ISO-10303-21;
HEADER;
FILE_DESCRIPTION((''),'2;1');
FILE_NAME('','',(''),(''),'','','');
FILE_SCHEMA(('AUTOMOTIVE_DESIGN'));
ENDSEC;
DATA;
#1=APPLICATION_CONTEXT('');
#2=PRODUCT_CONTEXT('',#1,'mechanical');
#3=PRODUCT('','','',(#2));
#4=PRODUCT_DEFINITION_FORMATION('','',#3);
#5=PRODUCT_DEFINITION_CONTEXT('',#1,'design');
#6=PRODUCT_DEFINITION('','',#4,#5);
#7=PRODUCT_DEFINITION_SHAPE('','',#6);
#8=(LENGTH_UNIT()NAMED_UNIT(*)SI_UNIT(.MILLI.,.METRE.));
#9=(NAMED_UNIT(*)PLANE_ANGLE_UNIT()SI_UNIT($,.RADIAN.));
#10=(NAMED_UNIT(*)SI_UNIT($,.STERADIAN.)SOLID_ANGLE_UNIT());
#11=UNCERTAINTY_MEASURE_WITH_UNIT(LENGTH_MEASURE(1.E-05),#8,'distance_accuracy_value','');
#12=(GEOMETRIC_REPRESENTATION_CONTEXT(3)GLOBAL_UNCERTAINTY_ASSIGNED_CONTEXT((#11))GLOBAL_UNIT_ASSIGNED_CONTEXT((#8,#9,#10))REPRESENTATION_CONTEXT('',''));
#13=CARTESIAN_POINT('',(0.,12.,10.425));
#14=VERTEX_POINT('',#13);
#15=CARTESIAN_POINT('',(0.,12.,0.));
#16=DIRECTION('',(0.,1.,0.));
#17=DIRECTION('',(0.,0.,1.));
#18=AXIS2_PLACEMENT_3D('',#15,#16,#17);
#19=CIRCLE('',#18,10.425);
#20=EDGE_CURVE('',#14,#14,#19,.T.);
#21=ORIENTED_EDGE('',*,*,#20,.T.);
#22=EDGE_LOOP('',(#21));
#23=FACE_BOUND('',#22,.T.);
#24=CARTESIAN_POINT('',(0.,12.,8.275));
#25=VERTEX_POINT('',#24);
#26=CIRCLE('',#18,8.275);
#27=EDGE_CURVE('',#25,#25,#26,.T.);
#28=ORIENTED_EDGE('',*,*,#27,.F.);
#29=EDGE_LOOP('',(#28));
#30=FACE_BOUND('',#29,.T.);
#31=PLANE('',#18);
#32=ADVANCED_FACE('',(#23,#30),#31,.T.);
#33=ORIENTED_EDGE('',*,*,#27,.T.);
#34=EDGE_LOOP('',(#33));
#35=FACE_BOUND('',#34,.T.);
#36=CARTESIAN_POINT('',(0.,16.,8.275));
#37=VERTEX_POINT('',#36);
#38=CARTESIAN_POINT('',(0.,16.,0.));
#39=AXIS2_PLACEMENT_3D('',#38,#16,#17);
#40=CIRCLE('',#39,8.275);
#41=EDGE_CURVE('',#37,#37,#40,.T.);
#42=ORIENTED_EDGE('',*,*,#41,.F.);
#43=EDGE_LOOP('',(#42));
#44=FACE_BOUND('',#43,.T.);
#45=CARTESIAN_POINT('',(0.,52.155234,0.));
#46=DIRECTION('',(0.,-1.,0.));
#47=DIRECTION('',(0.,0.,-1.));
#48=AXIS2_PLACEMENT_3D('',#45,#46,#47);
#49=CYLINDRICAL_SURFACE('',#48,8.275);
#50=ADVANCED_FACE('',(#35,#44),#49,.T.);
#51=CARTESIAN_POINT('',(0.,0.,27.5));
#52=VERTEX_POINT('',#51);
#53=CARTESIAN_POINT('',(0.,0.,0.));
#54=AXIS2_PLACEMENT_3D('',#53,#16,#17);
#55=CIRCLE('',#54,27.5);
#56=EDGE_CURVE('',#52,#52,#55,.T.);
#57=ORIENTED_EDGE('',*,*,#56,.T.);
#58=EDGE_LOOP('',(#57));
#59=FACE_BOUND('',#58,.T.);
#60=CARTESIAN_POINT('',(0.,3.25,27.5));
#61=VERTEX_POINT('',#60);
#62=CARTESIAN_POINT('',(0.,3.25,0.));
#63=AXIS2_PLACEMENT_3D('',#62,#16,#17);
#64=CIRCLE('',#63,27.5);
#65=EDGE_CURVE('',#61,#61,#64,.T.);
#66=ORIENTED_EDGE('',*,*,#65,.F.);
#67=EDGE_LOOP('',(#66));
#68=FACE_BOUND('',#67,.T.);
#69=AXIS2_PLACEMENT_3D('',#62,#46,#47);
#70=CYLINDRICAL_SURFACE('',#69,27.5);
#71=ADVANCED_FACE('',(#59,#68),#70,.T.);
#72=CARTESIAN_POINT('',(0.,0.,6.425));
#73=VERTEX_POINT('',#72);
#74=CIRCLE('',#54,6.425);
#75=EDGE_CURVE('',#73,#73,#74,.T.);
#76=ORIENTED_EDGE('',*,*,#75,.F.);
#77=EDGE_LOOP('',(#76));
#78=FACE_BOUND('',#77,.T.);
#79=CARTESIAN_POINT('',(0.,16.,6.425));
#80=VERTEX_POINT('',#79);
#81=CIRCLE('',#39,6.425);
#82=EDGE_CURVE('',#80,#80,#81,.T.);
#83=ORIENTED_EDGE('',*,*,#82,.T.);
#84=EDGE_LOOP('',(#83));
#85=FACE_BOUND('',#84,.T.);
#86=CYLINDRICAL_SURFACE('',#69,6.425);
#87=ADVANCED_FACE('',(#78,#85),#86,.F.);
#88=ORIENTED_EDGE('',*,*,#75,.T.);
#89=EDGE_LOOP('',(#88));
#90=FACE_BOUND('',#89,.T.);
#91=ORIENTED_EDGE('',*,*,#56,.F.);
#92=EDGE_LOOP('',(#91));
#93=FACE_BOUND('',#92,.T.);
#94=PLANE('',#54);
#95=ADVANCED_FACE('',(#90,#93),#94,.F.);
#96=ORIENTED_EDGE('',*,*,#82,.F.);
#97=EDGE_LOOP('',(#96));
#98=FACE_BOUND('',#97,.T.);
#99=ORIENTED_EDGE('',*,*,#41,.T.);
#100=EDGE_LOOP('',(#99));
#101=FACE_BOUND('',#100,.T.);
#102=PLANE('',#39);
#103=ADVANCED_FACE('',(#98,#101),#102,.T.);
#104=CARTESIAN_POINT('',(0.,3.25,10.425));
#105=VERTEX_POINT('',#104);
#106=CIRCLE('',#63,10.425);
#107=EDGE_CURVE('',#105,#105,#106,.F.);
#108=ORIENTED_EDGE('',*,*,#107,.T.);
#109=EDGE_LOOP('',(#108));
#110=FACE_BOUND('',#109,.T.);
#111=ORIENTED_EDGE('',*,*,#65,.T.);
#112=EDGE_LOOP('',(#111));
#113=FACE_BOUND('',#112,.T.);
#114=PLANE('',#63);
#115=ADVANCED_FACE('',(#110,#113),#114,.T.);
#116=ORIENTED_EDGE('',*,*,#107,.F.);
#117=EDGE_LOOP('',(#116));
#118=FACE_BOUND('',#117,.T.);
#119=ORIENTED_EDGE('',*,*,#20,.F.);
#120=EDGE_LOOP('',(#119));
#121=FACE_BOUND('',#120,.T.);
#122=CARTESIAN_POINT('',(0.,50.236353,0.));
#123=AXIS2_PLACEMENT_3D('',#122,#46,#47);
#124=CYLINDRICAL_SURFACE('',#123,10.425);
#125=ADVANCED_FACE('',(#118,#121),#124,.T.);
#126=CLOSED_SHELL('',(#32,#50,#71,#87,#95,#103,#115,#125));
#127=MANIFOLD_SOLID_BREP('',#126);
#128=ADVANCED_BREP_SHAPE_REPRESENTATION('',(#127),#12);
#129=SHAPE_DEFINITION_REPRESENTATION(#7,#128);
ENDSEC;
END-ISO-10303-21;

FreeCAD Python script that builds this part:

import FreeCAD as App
import Part
import Sketcher

V = App.Vector

doc = App.newDocument("Part")
body = doc.addObject("PartDesign::Body", "Body")

sketch1 = body.newObject("Sketcher::SketchObject", "Sketch")
sketch1.AttachmentSupport = (doc.getObject("XZ_Plane"), [""])
sketch1.MapMode = "FlatFace"
sketch1.addGeometry([
    Part.Circle(V(0, 0, 0), V(0, 0, 1), 28),
    Part.Circle(V(0, 0, 0), V(0, 0, 1), 6),
], False)
sketch1.addConstraint([
    Sketcher.Constraint("Coincident", 0, 3, -1, 1),
    Sketcher.Constraint("Coincident", 1, 3, -1, 1),
    Sketcher.Constraint("Diameter", 0, 55.0),
    Sketcher.Constraint("Diameter", 1, 12.85),
])
pad1 = body.newObject("PartDesign::Pad", "Pad")
pad1.Profile = sketch1
pad1.Length = 3.25
pad1.Reversed = True

sketch2 = body.newObject("Sketcher::SketchObject", "Sketch001")
sketch2.AttachmentSupport = (doc.getObject("XZ_Plane"), [""])
sketch2.MapMode = "FlatFace"
sketch2.addGeometry([
    Part.Circle(V(0, 0, 0), V(0, 0, 1), 8),
    Part.Circle(V(0, 0, 0), V(0, 0, 1), 6),
], False)
sketch2.addConstraint([
    Sketcher.Constraint("Coincident", 0, 3, -1, 1),
    Sketcher.Constraint("Coincident", 1, 3, -1, 1),
    Sketcher.Constraint("Diameter", 0, 16.55),
    Sketcher.Constraint("Diameter", 1, 12.85),
])
pad2 = body.newObject("PartDesign::Pad", "Pad001")
pad2.Profile = sketch2
pad2.Length = 16
pad2.Reversed = True

sketch3 = body.newObject("Sketcher::SketchObject", "Sketch002")
sketch3.AttachmentSupport = (doc.getObject("XZ_Plane"), [""])
sketch3.MapMode = "FlatFace"
sketch3.addGeometry([
    Part.Circle(V(0, 0, 0), V(0, 0, 1), 10),
    Part.Circle(V(0, 0, 0), V(0, 0, 1), 8),
], False)
sketch3.addConstraint([
    Sketcher.Constraint("Coincident", 0, 3, -1, 1),
    Sketcher.Constraint("Coincident", 1, 3, -1, 1),
    Sketcher.Constraint("Diameter", 0, 20.85),
    Sketcher.Constraint("Diameter", 1, 16.55),
])
pad3 = body.newObject("PartDesign::Pad", "Pad002")
pad3.Profile = sketch3
pad3.Length = 12
pad3.Reversed = True

doc.recompute()
